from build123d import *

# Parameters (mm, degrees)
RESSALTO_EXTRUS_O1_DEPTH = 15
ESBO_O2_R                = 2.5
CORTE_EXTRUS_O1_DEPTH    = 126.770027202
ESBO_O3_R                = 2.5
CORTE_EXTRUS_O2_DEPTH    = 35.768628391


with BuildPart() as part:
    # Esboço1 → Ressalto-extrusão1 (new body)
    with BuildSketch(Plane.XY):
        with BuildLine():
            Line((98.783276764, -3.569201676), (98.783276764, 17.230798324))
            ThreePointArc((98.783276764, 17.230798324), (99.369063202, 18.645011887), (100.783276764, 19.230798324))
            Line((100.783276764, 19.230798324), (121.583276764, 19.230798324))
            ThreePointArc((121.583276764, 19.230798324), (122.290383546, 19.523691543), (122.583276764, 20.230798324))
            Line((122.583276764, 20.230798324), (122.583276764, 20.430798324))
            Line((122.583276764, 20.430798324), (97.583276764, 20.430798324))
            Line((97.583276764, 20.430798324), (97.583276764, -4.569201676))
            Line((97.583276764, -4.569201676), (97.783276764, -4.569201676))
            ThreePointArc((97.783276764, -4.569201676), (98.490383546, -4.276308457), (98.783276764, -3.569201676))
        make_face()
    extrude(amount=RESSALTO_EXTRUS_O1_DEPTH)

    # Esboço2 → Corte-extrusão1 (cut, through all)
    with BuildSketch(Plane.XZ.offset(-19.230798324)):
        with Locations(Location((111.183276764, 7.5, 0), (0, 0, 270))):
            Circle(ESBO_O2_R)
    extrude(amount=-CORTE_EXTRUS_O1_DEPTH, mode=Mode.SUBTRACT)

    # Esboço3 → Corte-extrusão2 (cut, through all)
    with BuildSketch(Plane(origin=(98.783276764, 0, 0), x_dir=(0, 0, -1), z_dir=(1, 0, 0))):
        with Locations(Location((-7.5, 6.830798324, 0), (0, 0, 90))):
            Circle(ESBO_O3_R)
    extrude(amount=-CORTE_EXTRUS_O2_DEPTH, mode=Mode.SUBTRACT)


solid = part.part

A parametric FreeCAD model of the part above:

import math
import FreeCAD as App
import Part
import Sketcher

doc = App.newDocument("Part")
body = doc.addObject("PartDesign::Body", "Body")

# Sketch on XY plane
sketch1 = doc.addObject("Sketcher::SketchObject", "Sketch")
body.addObject(sketch1)
sketch1.AttachmentSupport = (doc.XY_Plane, [""])
sketch1.MapMode = "FlatFace"
sketch1.addGeometry(Part.LineSegment(App.Vector(98.78, -3.57, 0), App.Vector(98.78, 17.23, 0)), False)
sketch1.addGeometry(Part.ArcOfCircle(Part.Circle(App.Vector(100.78, 17.23, 0), App.Vector(0, 0, 1), 2), math.radians(90), math.radians(180)), False)
sketch1.addGeometry(Part.LineSegment(App.Vector(100.78, 19.23, 0), App.Vector(121.58, 19.23, 0)), False)
sketch1.addGeometry(Part.ArcOfCircle(Part.Circle(App.Vector(121.58, 20.23, 0), App.Vector(0, 0, 1), 1), math.radians(-90), math.radians(0)), False)
sketch1.addGeometry(Part.LineSegment(App.Vector(122.58, 20.23, 0), App.Vector(122.58, 20.43, 0)), False)
sketch1.addGeometry(Part.LineSegment(App.Vector(122.58, 20.43, 0), App.Vector(97.58, 20.43, 0)), False)
sketch1.addGeometry(Part.LineSegment(App.Vector(97.58, 20.43, 0), App.Vector(97.58, -4.57, 0)), False)
sketch1.addGeometry(Part.LineSegment(App.Vector(97.58, -4.57, 0), App.Vector(97.78, -4.57, 0)), False)
sketch1.addGeometry(Part.ArcOfCircle(Part.Circle(App.Vector(97.78, -3.57, 0), App.Vector(0, 0, 1), 1), math.radians(-90), math.radians(0)), False)
sketch1.addConstraint(Sketcher.Constraint("Tangent", 0, 2, 1, 2))
sketch1.addConstraint(Sketcher.Constraint("Tangent", 1, 1, 2, 1))
sketch1.addConstraint(Sketcher.Constraint("Tangent", 2, 2, 3, 1))
sketch1.addConstraint(Sketcher.Constraint("Tangent", 3, 2, 4, 1))
sketch1.addConstraint(Sketcher.Constraint("Coincident", 4, 2, 5, 1))
sketch1.addConstraint(Sketcher.Constraint("Coincident", 5, 2, 6, 1))
sketch1.addConstraint(Sketcher.Constraint("Coincident", 6, 2, 7, 1))
sketch1.addConstraint(Sketcher.Constraint("Tangent", 7, 2, 8, 1))
sketch1.addConstraint(Sketcher.Constraint("Tangent", 8, 2, 0, 1))
sketch1.addConstraint(Sketcher.Constraint("Vertical", 0))
sketch1.addConstraint(Sketcher.Constraint("Horizontal", 2))
sketch1.addConstraint(Sketcher.Constraint("Vertical", 4))
sketch1.addConstraint(Sketcher.Constraint("Horizontal", 5))
sketch1.addConstraint(Sketcher.Constraint("Vertical", 6))
sketch1.addConstraint(Sketcher.Constraint("Horizontal", 7))
sketch1.addConstraint(Sketcher.Constraint("Equal", 3, 8))
sketch1.addConstraint(Sketcher.Constraint("Equal", 2, 0))
sketch1.addConstraint(Sketcher.Constraint("Equal", 7, 4))
sketch1.addConstraint(Sketcher.Constraint("Radius", 1, 2.0))
sketch1.addConstraint(Sketcher.Constraint("Radius", 3, 1.0))
sketch1.addConstraint(Sketcher.Constraint("DistanceX", 5, 2, 5, 1, 25.0))
sketch1.addConstraint(Sketcher.Constraint("DistanceX", 2, 1, 2, 2, 20.8))
sketch1.addConstraint(Sketcher.Constraint("DistanceY", -1, 1, 1, 3, 17.230798))
sketch1.addConstraint(Sketcher.Constraint("DistanceX", -1, 1, 1, 3, 100.783277))
pad1 = doc.addObject("PartDesign::Pad", "Pad")
body.addObject(pad1)
pad1.Profile = sketch1
pad1.Length = 15

# Sketch on XZ plane
sketch2 = doc.addObject("Sketcher::SketchObject", "Sketch001")
body.addObject(sketch2)
sketch2.AttachmentSupport = (doc.XZ_Plane, [""])
sketch2.MapMode = "FlatFace"
sketch2.AttachmentOffset = App.Placement(App.Vector(0, 0, -19.230798), App.Rotation())
sketch2.addGeometry(Part.Circle(App.Vector(111.2, 7.5, 0), App.Vector(0, 0, 1), 2.5), False)
sketch2.addConstraint(Sketcher.Constraint("Diameter", 0, 5.0))
sketch2.addConstraint(Sketcher.Constraint("DistanceY", -1, 1, 0, 3, 7.5))
sketch2.addConstraint(Sketcher.Constraint("DistanceX", -1, 1, 0, 3, 111.183277))
pocket1 = doc.addObject("PartDesign::Pocket", "Pocket")
body.addObject(pocket1)
pocket1.Profile = sketch2
pocket1.Type = "ThroughAll"

# Sketch on YZ plane
sketch3 = doc.addObject("Sketcher::SketchObject", "Sketch002")
body.addObject(sketch3)
sketch3.AttachmentSupport = (doc.YZ_Plane, [""])
sketch3.MapMode = "FlatFace"
sketch3.AttachmentOffset = App.Placement(App.Vector(0, 0, 98.783277), App.Rotation())
sketch3.addGeometry(Part.Circle(App.Vector(6.8, 7.5, 0), App.Vector(0, 0, 1), 2.5), False)
sketch3.addConstraint(Sketcher.Constraint("Diameter", 0, 5.0))
sketch3.addConstraint(Sketcher.Constraint("DistanceY", -1, 1, 0, 3, 7.5))
sketch3.addConstraint(Sketcher.Constraint("DistanceX", -1, 1, 0, 3, 6.830798))
pocket2 = doc.addObject("PartDesign::Pocket", "Pocket001")
body.addObject(pocket2)
pocket2.Profile = sketch3
pocket2.Type = "ThroughAll"

doc.recompute()
